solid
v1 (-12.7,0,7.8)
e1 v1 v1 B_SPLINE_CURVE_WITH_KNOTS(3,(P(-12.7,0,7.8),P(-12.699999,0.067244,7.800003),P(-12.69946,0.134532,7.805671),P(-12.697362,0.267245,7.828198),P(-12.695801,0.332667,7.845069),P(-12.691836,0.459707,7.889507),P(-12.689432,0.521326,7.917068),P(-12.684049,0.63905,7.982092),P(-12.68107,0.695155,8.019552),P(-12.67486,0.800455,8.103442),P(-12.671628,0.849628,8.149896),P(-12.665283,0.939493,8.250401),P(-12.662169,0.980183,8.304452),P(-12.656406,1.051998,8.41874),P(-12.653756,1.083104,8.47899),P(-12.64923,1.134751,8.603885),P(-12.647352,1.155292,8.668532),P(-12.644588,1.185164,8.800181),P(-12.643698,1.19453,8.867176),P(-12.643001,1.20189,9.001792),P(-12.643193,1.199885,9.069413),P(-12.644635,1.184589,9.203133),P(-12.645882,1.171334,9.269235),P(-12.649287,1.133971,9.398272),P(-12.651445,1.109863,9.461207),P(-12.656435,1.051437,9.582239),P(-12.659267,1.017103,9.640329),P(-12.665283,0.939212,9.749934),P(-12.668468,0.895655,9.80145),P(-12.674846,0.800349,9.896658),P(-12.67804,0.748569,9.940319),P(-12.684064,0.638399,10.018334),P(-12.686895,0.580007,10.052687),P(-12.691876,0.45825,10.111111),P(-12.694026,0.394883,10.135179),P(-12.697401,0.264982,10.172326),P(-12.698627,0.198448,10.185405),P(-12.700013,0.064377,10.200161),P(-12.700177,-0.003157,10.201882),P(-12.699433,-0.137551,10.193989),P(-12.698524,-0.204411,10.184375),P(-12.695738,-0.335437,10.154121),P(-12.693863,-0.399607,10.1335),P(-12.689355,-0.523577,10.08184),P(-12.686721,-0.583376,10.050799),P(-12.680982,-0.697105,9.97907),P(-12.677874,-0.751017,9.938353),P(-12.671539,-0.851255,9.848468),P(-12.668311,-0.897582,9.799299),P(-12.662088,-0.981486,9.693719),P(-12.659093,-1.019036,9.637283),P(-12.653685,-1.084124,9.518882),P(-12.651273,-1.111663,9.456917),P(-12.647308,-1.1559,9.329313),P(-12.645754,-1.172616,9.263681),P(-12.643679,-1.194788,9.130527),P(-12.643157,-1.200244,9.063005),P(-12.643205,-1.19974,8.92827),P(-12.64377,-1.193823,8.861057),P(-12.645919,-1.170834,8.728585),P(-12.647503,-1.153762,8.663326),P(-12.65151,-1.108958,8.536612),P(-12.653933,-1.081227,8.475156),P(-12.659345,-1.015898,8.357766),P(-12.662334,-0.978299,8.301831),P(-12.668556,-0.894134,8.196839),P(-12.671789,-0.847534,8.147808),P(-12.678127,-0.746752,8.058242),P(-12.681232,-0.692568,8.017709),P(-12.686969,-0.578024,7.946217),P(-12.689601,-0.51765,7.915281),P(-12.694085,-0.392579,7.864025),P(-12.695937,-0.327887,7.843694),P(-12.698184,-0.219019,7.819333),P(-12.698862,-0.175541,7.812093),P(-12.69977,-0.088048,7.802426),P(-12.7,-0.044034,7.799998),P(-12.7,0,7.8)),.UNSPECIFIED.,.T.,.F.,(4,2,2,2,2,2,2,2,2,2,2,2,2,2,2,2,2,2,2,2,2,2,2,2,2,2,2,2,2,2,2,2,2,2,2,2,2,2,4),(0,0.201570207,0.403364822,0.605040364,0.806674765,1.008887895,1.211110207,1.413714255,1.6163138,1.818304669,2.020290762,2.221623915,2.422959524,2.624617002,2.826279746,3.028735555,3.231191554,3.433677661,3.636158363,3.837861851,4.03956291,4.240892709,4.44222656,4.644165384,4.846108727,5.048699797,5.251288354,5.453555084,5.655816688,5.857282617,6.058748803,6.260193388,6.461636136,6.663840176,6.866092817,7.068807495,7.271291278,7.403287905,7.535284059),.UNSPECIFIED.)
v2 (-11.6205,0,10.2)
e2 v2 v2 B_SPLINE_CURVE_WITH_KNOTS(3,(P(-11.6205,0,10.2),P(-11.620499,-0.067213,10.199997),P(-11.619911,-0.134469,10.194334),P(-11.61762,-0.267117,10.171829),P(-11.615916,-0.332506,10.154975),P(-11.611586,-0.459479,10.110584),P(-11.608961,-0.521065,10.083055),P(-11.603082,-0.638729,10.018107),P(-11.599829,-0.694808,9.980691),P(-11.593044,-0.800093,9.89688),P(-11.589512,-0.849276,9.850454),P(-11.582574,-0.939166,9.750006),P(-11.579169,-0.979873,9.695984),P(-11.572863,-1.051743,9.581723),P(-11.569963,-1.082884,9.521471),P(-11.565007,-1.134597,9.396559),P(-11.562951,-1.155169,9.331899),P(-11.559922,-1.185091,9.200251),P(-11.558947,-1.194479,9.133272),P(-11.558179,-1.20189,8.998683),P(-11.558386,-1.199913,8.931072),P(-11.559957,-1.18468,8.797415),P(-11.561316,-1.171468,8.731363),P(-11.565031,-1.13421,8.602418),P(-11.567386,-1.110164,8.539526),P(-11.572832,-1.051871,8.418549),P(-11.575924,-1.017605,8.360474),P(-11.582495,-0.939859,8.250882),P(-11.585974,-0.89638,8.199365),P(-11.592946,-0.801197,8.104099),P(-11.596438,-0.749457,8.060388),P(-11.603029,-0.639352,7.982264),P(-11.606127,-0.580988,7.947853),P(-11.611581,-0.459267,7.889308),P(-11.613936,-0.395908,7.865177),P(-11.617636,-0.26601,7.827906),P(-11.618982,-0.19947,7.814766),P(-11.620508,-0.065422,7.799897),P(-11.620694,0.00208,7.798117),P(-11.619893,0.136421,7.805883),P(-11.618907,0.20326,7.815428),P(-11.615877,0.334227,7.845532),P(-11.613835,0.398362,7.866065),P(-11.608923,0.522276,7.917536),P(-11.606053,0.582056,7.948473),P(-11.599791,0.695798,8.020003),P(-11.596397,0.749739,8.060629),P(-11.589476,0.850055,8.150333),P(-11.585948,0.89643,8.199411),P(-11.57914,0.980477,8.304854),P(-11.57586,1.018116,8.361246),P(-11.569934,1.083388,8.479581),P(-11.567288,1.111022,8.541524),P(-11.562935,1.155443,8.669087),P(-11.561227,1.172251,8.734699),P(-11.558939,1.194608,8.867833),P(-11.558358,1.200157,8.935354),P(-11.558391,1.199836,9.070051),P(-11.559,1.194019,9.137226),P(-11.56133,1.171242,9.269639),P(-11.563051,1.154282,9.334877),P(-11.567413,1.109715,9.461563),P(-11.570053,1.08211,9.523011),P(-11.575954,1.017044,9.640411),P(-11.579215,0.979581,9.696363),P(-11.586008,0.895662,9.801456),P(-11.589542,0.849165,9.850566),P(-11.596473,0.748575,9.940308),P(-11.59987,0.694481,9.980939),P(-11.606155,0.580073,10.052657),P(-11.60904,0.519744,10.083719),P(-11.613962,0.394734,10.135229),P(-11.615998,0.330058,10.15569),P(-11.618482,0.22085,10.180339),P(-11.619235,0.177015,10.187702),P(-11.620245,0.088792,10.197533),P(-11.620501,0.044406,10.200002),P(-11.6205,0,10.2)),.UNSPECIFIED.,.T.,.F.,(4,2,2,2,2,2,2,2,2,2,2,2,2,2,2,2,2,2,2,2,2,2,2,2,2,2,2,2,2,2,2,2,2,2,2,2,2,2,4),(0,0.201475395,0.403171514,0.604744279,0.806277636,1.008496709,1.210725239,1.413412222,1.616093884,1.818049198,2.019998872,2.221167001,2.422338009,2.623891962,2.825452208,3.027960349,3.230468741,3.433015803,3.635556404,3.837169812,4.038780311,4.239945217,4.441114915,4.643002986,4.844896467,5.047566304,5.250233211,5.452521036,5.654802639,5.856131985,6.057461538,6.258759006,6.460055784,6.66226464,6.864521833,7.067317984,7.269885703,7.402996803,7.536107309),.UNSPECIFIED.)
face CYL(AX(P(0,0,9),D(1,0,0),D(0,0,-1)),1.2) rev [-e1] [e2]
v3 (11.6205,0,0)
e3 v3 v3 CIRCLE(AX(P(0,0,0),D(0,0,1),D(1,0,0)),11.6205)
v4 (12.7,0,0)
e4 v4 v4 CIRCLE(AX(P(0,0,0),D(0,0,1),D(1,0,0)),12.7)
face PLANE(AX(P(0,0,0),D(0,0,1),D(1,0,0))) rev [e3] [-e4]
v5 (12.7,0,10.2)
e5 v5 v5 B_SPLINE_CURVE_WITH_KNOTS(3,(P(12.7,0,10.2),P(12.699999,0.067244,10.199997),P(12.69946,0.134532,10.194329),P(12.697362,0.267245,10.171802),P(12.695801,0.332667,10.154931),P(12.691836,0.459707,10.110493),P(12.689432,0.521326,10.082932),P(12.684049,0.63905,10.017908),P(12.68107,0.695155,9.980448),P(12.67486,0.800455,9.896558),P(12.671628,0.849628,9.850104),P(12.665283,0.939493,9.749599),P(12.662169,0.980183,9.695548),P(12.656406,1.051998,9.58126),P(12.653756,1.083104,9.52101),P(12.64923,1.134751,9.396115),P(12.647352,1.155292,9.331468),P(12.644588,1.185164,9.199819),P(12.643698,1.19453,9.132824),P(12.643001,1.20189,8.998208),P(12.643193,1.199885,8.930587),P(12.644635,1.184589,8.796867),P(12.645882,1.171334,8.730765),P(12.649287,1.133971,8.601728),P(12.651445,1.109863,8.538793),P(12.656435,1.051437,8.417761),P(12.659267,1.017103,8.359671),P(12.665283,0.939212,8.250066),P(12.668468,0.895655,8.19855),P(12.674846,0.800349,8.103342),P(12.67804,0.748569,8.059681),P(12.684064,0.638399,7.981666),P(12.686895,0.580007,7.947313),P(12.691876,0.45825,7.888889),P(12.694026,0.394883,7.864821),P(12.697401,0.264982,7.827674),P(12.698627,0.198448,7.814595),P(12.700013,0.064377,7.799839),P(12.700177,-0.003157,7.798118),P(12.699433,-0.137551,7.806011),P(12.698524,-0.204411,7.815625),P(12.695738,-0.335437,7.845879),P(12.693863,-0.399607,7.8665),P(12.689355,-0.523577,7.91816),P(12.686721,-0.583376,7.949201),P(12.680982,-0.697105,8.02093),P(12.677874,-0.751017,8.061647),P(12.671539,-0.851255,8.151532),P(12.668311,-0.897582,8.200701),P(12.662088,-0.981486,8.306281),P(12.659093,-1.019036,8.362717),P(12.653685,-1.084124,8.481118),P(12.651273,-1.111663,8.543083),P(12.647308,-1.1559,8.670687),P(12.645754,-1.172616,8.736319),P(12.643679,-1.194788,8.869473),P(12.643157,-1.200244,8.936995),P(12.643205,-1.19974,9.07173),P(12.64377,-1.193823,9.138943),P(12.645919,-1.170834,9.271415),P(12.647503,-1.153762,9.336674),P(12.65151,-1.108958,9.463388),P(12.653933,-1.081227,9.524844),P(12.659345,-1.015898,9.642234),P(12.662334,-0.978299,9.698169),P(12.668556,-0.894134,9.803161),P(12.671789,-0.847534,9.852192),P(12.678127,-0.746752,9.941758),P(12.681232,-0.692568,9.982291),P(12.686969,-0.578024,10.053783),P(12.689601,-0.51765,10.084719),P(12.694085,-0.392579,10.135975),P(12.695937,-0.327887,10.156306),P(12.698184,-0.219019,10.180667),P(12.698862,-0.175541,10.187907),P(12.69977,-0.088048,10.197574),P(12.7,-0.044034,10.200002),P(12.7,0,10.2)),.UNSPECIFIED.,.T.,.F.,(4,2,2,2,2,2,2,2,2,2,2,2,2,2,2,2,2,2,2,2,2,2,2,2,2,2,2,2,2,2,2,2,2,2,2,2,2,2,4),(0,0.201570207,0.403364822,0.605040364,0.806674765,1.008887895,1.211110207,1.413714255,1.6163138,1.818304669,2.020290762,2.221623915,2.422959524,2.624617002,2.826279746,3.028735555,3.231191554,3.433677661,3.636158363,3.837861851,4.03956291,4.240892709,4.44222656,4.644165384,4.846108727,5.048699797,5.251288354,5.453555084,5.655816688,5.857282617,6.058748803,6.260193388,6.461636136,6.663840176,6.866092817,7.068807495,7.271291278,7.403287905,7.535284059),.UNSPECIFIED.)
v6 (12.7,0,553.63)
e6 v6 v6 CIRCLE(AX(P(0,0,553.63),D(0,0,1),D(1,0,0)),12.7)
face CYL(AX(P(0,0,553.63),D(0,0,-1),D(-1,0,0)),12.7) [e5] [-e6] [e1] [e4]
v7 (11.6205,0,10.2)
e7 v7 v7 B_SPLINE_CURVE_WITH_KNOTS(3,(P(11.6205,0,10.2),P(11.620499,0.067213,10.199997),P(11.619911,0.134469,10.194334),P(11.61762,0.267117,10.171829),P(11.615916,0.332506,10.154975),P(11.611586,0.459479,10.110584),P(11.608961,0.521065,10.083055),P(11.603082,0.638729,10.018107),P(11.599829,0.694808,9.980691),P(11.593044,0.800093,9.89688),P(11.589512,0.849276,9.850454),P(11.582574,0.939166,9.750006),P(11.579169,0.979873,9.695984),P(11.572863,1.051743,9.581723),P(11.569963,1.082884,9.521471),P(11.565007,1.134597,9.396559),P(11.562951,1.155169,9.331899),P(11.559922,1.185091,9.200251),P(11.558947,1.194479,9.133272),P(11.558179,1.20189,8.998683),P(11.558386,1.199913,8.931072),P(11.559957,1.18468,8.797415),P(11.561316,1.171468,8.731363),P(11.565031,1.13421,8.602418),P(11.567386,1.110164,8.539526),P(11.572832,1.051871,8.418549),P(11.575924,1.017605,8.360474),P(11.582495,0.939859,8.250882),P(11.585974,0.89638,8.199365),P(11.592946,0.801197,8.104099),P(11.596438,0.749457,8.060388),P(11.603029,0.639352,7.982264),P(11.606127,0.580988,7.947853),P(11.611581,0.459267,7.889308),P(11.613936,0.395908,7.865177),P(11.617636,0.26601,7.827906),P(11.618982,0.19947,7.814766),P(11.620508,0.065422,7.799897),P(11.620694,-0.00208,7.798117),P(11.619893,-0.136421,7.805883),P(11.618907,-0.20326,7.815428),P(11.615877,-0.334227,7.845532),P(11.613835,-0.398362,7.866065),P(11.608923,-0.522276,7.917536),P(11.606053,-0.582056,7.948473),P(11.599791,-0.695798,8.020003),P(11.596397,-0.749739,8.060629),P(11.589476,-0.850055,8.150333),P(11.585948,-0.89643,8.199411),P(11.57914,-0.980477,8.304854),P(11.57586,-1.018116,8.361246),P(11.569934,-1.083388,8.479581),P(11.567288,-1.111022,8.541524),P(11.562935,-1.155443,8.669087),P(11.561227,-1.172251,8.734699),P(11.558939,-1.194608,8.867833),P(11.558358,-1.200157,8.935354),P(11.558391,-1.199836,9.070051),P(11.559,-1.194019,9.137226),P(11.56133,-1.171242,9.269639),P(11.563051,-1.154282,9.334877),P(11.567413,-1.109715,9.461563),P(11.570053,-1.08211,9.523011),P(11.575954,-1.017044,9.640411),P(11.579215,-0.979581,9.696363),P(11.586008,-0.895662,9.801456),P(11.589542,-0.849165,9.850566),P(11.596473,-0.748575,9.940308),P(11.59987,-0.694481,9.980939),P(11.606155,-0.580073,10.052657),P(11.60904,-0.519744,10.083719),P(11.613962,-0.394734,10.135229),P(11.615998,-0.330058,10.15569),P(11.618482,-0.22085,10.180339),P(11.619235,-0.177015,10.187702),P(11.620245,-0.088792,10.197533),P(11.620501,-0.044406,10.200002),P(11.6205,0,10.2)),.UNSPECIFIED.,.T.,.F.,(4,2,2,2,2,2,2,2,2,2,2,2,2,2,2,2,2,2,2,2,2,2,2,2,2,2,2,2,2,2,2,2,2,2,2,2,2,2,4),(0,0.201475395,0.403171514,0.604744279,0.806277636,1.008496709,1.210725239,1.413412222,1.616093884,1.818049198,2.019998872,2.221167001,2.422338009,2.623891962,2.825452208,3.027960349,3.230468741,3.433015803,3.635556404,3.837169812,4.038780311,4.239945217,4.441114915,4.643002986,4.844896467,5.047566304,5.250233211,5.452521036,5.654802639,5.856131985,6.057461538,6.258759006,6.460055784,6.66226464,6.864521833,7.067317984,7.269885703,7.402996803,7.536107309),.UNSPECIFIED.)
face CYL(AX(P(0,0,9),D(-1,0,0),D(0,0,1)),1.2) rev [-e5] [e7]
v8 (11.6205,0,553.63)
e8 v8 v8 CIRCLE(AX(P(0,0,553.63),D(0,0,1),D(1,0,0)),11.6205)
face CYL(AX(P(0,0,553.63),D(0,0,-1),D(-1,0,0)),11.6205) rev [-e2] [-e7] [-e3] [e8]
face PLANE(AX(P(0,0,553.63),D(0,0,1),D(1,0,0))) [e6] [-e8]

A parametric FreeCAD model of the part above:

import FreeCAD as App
import Part
import Sketcher
from FreeCAD import Vector
Q = App.Units.Quantity


def add_polygon(sketch, points):
    """Adds a closed chain of lines whose ends are joined by coincident constraints."""
    first, n = sketch.GeometryCount, len(points)
    for a, b in zip(points, points[1:] + points[:1]):
        sketch.addGeometry(Part.LineSegment(App.Vector(*a, 0), App.Vector(*b, 0)), False)
    for i in range(n):
        sketch.addConstraint(Sketcher.Constraint("Coincident", first + i, 2, first + (i + 1) % n, 1))

doc = App.newDocument("Part")
body = doc.addObject("PartDesign::Body", "Body")

sketch1 = body.newObject("Sketcher::SketchObject", "Sketch")
sketch1.AttachmentSupport = (doc.getObject("XY_Plane"), [""])
sketch1.MapMode = "FlatFace"
sketch1.addGeometry([
    Part.Circle(Vector(0, 0, 0), Vector(0, 0, 1), 13),
    Part.Circle(Vector(0, 0, 0), Vector(0, 0, 1), 12),
], False)
sketch1.addConstraint([
    Sketcher.Constraint("Coincident", 0, 3, -1, 1),
    Sketcher.Constraint("Coincident", 1, 3, -1, 1),
    Sketcher.Constraint("Diameter", 0, Q("1 in")),
    Sketcher.Constraint("Diameter", 1, Q("0.915 in")),
])
pad1 = body.newObject("PartDesign::Pad", "Pad")
pad1.Profile = sketch1
pad1.Length = 553.63

sketch2 = body.newObject("Sketcher::SketchObject", "Sketch001")
sketch2.AttachmentSupport = (doc.getObject("XZ_Plane"), [""])
sketch2.MapMode = "FlatFace"
add_polygon(sketch2, [(12.7, 9), (0, 9), (0, 10.2), (12.7, 10.2)])
sketch2.addGeometry(Part.LineSegment(Vector(0, 9, 0), Vector(12.7, 9, 0)), True)
sketch2.addConstraint([
    Sketcher.Constraint("Horizontal", 0),
    Sketcher.Constraint("Vertical", 1),
    Sketcher.Constraint("Horizontal", 2),
    Sketcher.Constraint("Vertical", 3),
    Sketcher.Constraint("Horizontal", 4),
    Sketcher.Constraint("Coincident", 4, 1, 0, 2),
    Sketcher.Constraint("PointOnObject", 0, 2, -2),
    Sketcher.Constraint("Vertical", 2, 2, 4, 2),
    Sketcher.Constraint("DistanceX", 0, 2, 0, 1, Q("0.5 in")),
    Sketcher.Constraint("DistanceY", 1, 1, 1, 2, 1.2),
    Sketcher.Constraint("DistanceY", -1, 1, 0, 2, 9.0),
])
groove = body.newObject("PartDesign::Groove", "Groove")
groove.Profile = sketch2
groove.ReferenceAxis = (sketch2, ["Axis0"])
groove.Angle = 360
doc.recompute()

mirrored = body.newObject("PartDesign::Mirrored", "Mirrored")
mirrored.Originals = [groove]
mirrored.MirrorPlane = (doc.getObject("YZ_Plane"), [""])
body.Tip = mirrored

doc.recompute()
